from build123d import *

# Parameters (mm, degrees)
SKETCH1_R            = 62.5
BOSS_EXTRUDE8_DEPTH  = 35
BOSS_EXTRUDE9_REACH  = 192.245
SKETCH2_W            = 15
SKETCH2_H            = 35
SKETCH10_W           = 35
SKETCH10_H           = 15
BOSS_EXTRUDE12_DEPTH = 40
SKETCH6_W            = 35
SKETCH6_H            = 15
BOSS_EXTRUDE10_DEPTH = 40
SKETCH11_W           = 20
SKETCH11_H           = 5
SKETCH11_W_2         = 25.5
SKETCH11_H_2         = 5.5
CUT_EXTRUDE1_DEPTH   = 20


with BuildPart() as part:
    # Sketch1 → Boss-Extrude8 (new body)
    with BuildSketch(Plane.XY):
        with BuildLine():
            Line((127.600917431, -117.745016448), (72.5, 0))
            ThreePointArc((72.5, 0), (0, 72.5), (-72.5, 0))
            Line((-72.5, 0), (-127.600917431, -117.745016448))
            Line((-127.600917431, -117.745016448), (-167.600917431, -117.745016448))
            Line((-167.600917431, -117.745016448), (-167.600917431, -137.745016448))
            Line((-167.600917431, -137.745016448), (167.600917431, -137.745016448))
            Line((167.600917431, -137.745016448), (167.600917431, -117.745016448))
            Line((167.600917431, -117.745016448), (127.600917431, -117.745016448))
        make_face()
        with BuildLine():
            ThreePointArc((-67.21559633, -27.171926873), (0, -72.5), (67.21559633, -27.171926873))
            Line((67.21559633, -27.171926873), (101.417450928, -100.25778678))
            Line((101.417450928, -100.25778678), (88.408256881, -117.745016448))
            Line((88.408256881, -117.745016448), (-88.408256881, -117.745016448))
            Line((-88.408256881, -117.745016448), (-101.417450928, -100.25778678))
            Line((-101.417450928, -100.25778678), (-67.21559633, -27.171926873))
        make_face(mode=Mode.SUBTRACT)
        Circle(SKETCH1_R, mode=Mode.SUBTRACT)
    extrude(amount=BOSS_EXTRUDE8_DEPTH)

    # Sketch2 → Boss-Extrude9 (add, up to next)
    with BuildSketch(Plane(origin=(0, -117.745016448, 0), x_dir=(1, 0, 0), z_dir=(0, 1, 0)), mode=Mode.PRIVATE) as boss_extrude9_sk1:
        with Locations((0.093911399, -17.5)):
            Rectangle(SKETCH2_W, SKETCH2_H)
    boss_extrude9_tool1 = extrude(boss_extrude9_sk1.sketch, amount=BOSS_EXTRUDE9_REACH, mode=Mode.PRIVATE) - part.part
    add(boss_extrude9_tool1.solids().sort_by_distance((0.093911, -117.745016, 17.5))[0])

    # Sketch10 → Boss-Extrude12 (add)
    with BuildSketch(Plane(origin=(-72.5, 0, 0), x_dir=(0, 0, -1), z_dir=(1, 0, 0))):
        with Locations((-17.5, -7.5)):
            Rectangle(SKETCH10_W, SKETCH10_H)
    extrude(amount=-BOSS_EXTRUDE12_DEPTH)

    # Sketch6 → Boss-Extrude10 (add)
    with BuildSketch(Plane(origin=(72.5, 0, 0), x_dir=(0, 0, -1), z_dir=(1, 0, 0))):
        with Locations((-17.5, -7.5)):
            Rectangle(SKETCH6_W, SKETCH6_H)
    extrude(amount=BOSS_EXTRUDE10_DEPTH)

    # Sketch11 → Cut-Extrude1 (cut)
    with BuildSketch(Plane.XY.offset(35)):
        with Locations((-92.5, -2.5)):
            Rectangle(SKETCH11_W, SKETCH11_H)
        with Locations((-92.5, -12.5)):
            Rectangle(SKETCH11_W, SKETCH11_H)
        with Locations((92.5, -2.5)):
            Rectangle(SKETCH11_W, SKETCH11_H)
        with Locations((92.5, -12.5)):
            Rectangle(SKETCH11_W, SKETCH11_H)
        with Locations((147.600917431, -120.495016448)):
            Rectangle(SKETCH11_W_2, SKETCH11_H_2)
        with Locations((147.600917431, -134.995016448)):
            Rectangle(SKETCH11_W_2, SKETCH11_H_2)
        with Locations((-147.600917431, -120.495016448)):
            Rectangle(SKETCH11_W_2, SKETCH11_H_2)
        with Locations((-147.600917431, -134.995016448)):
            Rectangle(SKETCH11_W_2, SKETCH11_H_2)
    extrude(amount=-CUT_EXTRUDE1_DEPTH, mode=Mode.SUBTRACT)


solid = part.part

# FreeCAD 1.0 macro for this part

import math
import FreeCAD as App
import Part
import Sketcher

V = App.Vector


def add_polygon(sketch, points):
    """Adds a closed chain of lines whose ends are joined by coincident constraints."""
    first, n = sketch.GeometryCount, len(points)
    for a, b in zip(points, points[1:] + points[:1]):
        sketch.addGeometry(Part.LineSegment(App.Vector(*a, 0), App.Vector(*b, 0)), False)
    for i in range(n):
        sketch.addConstraint(Sketcher.Constraint("Coincident", first + i, 2, first + (i + 1) % n, 1))

doc = App.newDocument("Part")
body = doc.addObject("PartDesign::Body", "Body")

# Sketch on XY plane
sketch1 = body.newObject("Sketcher::SketchObject", "Sketch")
sketch1.AttachmentSupport = (doc.getObject("XY_Plane"), [""])
sketch1.MapMode = "FlatFace"
sketch1.addGeometry([
    Part.LineSegment(V(128, -118, 0), V(72, 0, 0)),  # 0
    Part.ArcOfCircle(Part.Circle(V(0, 0, 0), V(0, 0, 1), 72), math.radians(0), math.radians(180)),  # 1
    Part.LineSegment(V(-72, 0, 0), V(-128, -118, 0)),  # 2
    Part.LineSegment(V(-128, -118, 0), V(-168, -118, 0)),  # 3
    Part.LineSegment(V(-168, -118, 0), V(-168, -138, 0)),  # 4
    Part.LineSegment(V(-168, -138, 0), V(168, -138, 0)),  # 5
    Part.LineSegment(V(168, -138, 0), V(168, -118, 0)),  # 6
    Part.LineSegment(V(168, -118, 0), V(128, -118, 0)),  # 7
    Part.LineSegment(V(-101, -100, 0), V(-67, -27, 0)),  # 8
    Part.ArcOfCircle(Part.Circle(V(0, 0, 0), V(0, 0, 1), 72), math.radians(-158), math.radians(-22)),  # 9
    Part.LineSegment(V(67, -27, 0), V(101, -100, 0)),  # 10
    Part.LineSegment(V(101, -100, 0), V(88, -118, 0)),  # 11
    Part.LineSegment(V(88, -118, 0), V(-88, -118, 0)),  # 12
    Part.LineSegment(V(-88, -118, 0), V(-101, -100, 0)),  # 13
    Part.Circle(V(0, 0, 0), V(0, 0, 1), 62),  # 14
], False)
sketch1.addConstraint([
    Sketcher.Constraint("Coincident", 0, 2, 1, 1),
    Sketcher.Constraint("Coincident", 1, 2, 2, 1),
    Sketcher.Constraint("Coincident", 2, 2, 3, 1),
    Sketcher.Constraint("Coincident", 3, 2, 4, 1),
    Sketcher.Constraint("Coincident", 4, 2, 5, 1),
    Sketcher.Constraint("Coincident", 5, 2, 6, 1),
    Sketcher.Constraint("Coincident", 6, 2, 7, 1),
    Sketcher.Constraint("Coincident", 7, 2, 0, 1),
    Sketcher.Constraint("Coincident", 8, 2, 9, 1),
    Sketcher.Constraint("Coincident", 9, 2, 10, 1),
    Sketcher.Constraint("Coincident", 10, 2, 11, 1),
    Sketcher.Constraint("Coincident", 11, 2, 12, 1),
    Sketcher.Constraint("Coincident", 12, 2, 13, 1),
    Sketcher.Constraint("Coincident", 13, 2, 8, 1),
    Sketcher.Constraint("Horizontal", 3),
    Sketcher.Constraint("Vertical", 4),
    Sketcher.Constraint("Horizontal", 5),
    Sketcher.Constraint("Vertical", 6),
    Sketcher.Constraint("Horizontal", 7),
    Sketcher.Constraint("Horizontal", 12),
    Sketcher.Constraint("Coincident", 1, 3, -1, 1),
    Sketcher.Constraint("Coincident", 9, 3, -1, 1),
    Sketcher.Constraint("Coincident", 14, 3, -1, 1),
    Sketcher.Constraint("Equal", 1, 9),
    Sketcher.Constraint("Symmetric", 3, 2, 6, 2, -2),
    Sketcher.Constraint("Symmetric", 10, 2, 13, 2, -2),
    Sketcher.Constraint("PointOnObject", 0, 2, -1),
    Sketcher.Constraint("PointOnObject", 1, 2, -1),
    Sketcher.Constraint("Parallel", 2, 8),
    Sketcher.Constraint("Parallel", 0, 10),
    Sketcher.Constraint("Horizontal", 8, 2, 9, 2),
    Sketcher.Constraint("Horizontal", 7, 2, 11, 2),
    Sketcher.Constraint("Equal", 11, 13),
    Sketcher.Constraint("Diameter", 14, 125.0),
    Sketcher.Constraint("Radius", 1, 72.5),
    Sketcher.Constraint("DistanceX", 3, 2, 3, 1, 40.0),
    Sketcher.Constraint("DistanceY", 4, 2, 4, 1, 20.0),
    Sketcher.Constraint("Distance", 0, 130.0),
    Sketcher.Constraint("DistanceX", 5, 1, 5, 2, 335.201835),
    Sketcher.Constraint("DistanceX", 12, 2, 12, 1, 176.816514),
    Sketcher.Constraint("DistanceX", -1, 1, 10, 2, 101.417451),
    Sketcher.Constraint("DistanceX", 2, 2, 8, 2, 60.385321),
])
pad1 = body.newObject("PartDesign::Pad", "Pad")
pad1.Profile = sketch1
pad1.Length = 35

# Sketch on XZ plane
sketch2 = body.newObject("Sketcher::SketchObject", "Sketch001")
sketch2.AttachmentSupport = (doc.getObject("XZ_Plane"), [""])
sketch2.MapMode = "FlatFace"
sketch2.AttachmentOffset = App.Placement(V(0, 0, 117.745016), App.Rotation())
add_polygon(sketch2, [(-7, 0), (-7, 35), (8, 35), (8, 0)])  # lines 0-3
sketch2.addConstraint([
    Sketcher.Constraint("Vertical", 0),
    Sketcher.Constraint("Horizontal", 1),
    Sketcher.Constraint("Vertical", 2),
    Sketcher.Constraint("Horizontal", 3),
    Sketcher.Constraint("PointOnObject", 2, 2, -1),
    Sketcher.Constraint("DistanceX", 1, 1, 1, 2, 15.0),
    Sketcher.Constraint("DistanceY", 0, 1, 0, 2, 35.0),
    Sketcher.Constraint("DistanceX", 0, 2, -1, 1, 7.406089),
])
pad2 = body.newObject("PartDesign::Pad", "Pad001")
pad2.Profile = sketch2
pad2.Type = "UpToFirst"
pad2.Reversed = True

# Sketch on YZ plane
sketch3 = body.newObject("Sketcher::SketchObject", "Sketch002")
sketch3.AttachmentSupport = (doc.getObject("YZ_Plane"), [""])
sketch3.MapMode = "FlatFace"
sketch3.AttachmentOffset = App.Placement(V(0, 0, -72.5), App.Rotation())
add_polygon(sketch3, [(0, 35), (-15, 35), (-15, 0), (0, 0)])  # lines 0-3
sketch3.addConstraint([
    Sketcher.Constraint("Horizontal", 0),
    Sketcher.Constraint("Vertical", 1),
    Sketcher.Constraint("Horizontal", 2),
    Sketcher.Constraint("Vertical", 3),
    Sketcher.Constraint("Coincident", 2, 2, -1, 1),
    Sketcher.Constraint("DistanceX", 0, 2, 0, 1, 15.0),
    Sketcher.Constraint("DistanceY", 1, 2, 1, 1, 35.0),
])
pad3 = body.newObject("PartDesign::Pad", "Pad002")
pad3.Profile = sketch3
pad3.Length = 40
pad3.Reversed = True

# Sketch on YZ plane
sketch4 = body.newObject("Sketcher::SketchObject", "Sketch003")
sketch4.AttachmentSupport = (doc.getObject("YZ_Plane"), [""])
sketch4.MapMode = "FlatFace"
sketch4.AttachmentOffset = App.Placement(V(0, 0, 72.5), App.Rotation())
add_polygon(sketch4, [(0, 35), (-15, 35), (-15, 0), (0, 0)])  # lines 0-3
sketch4.addConstraint([
    Sketcher.Constraint("Horizontal", 0),
    Sketcher.Constraint("Vertical", 1),
    Sketcher.Constraint("Horizontal", 2),
    Sketcher.Constraint("Vertical", 3),
    Sketcher.Constraint("Coincident", 2, 2, -1, 1),
    Sketcher.Constraint("DistanceX", 0, 2, 0, 1, 15.0),
    Sketcher.Constraint("DistanceY", 1, 2, 1, 1, 35.0),
])
pad4 = body.newObject("PartDesign::Pad", "Pad003")
pad4.Profile = sketch4
pad4.Length = 40

# Sketch on XY plane
sketch5 = body.newObject("Sketcher::SketchObject", "Sketch004")
sketch5.AttachmentSupport = (doc.getObject("XY_Plane"), [""])
sketch5.MapMode = "FlatFace"
sketch5.AttachmentOffset = App.Placement(V(0, 0, 35), App.Rotation())
add_polygon(sketch5, [(-102, 0), (-102, -5), (-82, -5), (-82, 0)])  # lines 0-3
add_polygon(sketch5, [(-102, -10), (-102, -15), (-82, -15), (-82, -10)])  # lines 4-7
add_polygon(sketch5, [(82, 0), (82, -5), (102, -5), (102, 0)])  # lines 8-11
add_polygon(sketch5, [(82, -10), (82, -15), (102, -15), (102, -10)])  # lines 12-15
add_polygon(sketch5, [(135, -118), (135, -123), (160, -123), (160, -118)])  # lines 16-19
add_polygon(sketch5, [(135, -132), (135, -138), (160, -138), (160, -132)])  # lines 20-23
add_polygon(sketch5, [(-160, -118), (-160, -123), (-135, -123), (-135, -118)])  # lines 24-27
add_polygon(sketch5, [(-160, -132), (-160, -138), (-135, -138), (-135, -132)])  # lines 28-31
sketch5.addConstraint([
    Sketcher.Constraint("Vertical", 0),
    Sketcher.Constraint("Horizontal", 1),
    Sketcher.Constraint("Vertical", 2),
    Sketcher.Constraint("Horizontal", 3),
    Sketcher.Constraint("Vertical", 4),
    Sketcher.Constraint("Horizontal", 5),
    Sketcher.Constraint("Vertical", 6),
    Sketcher.Constraint("Horizontal", 7),
    Sketcher.Constraint("Vertical", 8),
    Sketcher.Constraint("Horizontal", 9),
    Sketcher.Constraint("Vertical", 10),
    Sketcher.Constraint("Horizontal", 11),
    Sketcher.Constraint("Vertical", 12),
    Sketcher.Constraint("Horizontal", 13),
    Sketcher.Constraint("Vertical", 14),
    Sketcher.Constraint("Horizontal", 15),
    Sketcher.Constraint("Vertical", 16),
    Sketcher.Constraint("Horizontal", 17),
    Sketcher.Constraint("Vertical", 18),
    Sketcher.Constraint("Horizontal", 19),
    Sketcher.Constraint("Vertical", 20),
    Sketcher.Constraint("Horizontal", 21),
    Sketcher.Constraint("Vertical", 22),
    Sketcher.Constraint("Horizontal", 23),
    Sketcher.Constraint("Vertical", 24),
    Sketcher.Constraint("Horizontal", 25),
    Sketcher.Constraint("Vertical", 26),
    Sketcher.Constraint("Horizontal", 27),
    Sketcher.Constraint("Vertical", 28),
    Sketcher.Constraint("Horizontal", 29),
    Sketcher.Constraint("Vertical", 30),
    Sketcher.Constraint("Horizontal", 31),
    Sketcher.Constraint("Symmetric", 3, 2, 10, 2, -1, 1),
    Sketcher.Constraint("Symmetric", 1, 2, 8, 2, -2),
    Sketcher.Constraint("Symmetric", 5, 2, 12, 2, -2),
    Sketcher.Constraint("Symmetric", 7, 2, 14, 2, -2),
    Sketcher.Constraint("Symmetric", 17, 2, 24, 2, -2),
    Sketcher.Constraint("Symmetric", 19, 2, 26, 2, -2),
    Sketcher.Constraint("Symmetric", 21, 2, 28, 2, -2),
    Sketcher.Constraint("Symmetric", 23, 2, 30, 2, -2),
    Sketcher.Constraint("PointOnObject", 2, 2, -1),
    Sketcher.Constraint("Vertical", 3, 2, 4, 2),
    Sketcher.Constraint("Vertical", 2, 2, 5, 2),
    Sketcher.Constraint("Vertical", 19, 2, 20, 2),
    Sketcher.Constraint("Vertical", 18, 2, 21, 2),
    Sketcher.Constraint("Equal", 2, 4),
    Sketcher.Constraint("Equal", 18, 20),
    Sketcher.Constraint("DistanceX", 1, 1, 1, 2, 20.0),
    Sketcher.Constraint("DistanceY", 0, 2, 0, 1, 5.0),
    Sketcher.Constraint("DistanceX", 17, 1, 17, 2, 25.5),
    Sketcher.Constraint("DistanceY", 16, 2, 16, 1, 5.5),
    Sketcher.Constraint("DistanceY", 4, 2, -1, 1, 15.0),
    Sketcher.Constraint("DistanceX", 1, 2, 8, 2, 165.0),
    Sketcher.Constraint("DistanceY", 20, 2, 19, 2, 20.0),
    Sketcher.Constraint("DistanceX", -1, 1, 16, 2, 134.850917),
    Sketcher.Constraint("DistanceY", 16, 2, -1, 1, 123.245016),
])
pocket1 = body.newObject("PartDesign::Pocket", "Pocket")
pocket1.Profile = sketch5
pocket1.Length = 20

doc.recompute()
